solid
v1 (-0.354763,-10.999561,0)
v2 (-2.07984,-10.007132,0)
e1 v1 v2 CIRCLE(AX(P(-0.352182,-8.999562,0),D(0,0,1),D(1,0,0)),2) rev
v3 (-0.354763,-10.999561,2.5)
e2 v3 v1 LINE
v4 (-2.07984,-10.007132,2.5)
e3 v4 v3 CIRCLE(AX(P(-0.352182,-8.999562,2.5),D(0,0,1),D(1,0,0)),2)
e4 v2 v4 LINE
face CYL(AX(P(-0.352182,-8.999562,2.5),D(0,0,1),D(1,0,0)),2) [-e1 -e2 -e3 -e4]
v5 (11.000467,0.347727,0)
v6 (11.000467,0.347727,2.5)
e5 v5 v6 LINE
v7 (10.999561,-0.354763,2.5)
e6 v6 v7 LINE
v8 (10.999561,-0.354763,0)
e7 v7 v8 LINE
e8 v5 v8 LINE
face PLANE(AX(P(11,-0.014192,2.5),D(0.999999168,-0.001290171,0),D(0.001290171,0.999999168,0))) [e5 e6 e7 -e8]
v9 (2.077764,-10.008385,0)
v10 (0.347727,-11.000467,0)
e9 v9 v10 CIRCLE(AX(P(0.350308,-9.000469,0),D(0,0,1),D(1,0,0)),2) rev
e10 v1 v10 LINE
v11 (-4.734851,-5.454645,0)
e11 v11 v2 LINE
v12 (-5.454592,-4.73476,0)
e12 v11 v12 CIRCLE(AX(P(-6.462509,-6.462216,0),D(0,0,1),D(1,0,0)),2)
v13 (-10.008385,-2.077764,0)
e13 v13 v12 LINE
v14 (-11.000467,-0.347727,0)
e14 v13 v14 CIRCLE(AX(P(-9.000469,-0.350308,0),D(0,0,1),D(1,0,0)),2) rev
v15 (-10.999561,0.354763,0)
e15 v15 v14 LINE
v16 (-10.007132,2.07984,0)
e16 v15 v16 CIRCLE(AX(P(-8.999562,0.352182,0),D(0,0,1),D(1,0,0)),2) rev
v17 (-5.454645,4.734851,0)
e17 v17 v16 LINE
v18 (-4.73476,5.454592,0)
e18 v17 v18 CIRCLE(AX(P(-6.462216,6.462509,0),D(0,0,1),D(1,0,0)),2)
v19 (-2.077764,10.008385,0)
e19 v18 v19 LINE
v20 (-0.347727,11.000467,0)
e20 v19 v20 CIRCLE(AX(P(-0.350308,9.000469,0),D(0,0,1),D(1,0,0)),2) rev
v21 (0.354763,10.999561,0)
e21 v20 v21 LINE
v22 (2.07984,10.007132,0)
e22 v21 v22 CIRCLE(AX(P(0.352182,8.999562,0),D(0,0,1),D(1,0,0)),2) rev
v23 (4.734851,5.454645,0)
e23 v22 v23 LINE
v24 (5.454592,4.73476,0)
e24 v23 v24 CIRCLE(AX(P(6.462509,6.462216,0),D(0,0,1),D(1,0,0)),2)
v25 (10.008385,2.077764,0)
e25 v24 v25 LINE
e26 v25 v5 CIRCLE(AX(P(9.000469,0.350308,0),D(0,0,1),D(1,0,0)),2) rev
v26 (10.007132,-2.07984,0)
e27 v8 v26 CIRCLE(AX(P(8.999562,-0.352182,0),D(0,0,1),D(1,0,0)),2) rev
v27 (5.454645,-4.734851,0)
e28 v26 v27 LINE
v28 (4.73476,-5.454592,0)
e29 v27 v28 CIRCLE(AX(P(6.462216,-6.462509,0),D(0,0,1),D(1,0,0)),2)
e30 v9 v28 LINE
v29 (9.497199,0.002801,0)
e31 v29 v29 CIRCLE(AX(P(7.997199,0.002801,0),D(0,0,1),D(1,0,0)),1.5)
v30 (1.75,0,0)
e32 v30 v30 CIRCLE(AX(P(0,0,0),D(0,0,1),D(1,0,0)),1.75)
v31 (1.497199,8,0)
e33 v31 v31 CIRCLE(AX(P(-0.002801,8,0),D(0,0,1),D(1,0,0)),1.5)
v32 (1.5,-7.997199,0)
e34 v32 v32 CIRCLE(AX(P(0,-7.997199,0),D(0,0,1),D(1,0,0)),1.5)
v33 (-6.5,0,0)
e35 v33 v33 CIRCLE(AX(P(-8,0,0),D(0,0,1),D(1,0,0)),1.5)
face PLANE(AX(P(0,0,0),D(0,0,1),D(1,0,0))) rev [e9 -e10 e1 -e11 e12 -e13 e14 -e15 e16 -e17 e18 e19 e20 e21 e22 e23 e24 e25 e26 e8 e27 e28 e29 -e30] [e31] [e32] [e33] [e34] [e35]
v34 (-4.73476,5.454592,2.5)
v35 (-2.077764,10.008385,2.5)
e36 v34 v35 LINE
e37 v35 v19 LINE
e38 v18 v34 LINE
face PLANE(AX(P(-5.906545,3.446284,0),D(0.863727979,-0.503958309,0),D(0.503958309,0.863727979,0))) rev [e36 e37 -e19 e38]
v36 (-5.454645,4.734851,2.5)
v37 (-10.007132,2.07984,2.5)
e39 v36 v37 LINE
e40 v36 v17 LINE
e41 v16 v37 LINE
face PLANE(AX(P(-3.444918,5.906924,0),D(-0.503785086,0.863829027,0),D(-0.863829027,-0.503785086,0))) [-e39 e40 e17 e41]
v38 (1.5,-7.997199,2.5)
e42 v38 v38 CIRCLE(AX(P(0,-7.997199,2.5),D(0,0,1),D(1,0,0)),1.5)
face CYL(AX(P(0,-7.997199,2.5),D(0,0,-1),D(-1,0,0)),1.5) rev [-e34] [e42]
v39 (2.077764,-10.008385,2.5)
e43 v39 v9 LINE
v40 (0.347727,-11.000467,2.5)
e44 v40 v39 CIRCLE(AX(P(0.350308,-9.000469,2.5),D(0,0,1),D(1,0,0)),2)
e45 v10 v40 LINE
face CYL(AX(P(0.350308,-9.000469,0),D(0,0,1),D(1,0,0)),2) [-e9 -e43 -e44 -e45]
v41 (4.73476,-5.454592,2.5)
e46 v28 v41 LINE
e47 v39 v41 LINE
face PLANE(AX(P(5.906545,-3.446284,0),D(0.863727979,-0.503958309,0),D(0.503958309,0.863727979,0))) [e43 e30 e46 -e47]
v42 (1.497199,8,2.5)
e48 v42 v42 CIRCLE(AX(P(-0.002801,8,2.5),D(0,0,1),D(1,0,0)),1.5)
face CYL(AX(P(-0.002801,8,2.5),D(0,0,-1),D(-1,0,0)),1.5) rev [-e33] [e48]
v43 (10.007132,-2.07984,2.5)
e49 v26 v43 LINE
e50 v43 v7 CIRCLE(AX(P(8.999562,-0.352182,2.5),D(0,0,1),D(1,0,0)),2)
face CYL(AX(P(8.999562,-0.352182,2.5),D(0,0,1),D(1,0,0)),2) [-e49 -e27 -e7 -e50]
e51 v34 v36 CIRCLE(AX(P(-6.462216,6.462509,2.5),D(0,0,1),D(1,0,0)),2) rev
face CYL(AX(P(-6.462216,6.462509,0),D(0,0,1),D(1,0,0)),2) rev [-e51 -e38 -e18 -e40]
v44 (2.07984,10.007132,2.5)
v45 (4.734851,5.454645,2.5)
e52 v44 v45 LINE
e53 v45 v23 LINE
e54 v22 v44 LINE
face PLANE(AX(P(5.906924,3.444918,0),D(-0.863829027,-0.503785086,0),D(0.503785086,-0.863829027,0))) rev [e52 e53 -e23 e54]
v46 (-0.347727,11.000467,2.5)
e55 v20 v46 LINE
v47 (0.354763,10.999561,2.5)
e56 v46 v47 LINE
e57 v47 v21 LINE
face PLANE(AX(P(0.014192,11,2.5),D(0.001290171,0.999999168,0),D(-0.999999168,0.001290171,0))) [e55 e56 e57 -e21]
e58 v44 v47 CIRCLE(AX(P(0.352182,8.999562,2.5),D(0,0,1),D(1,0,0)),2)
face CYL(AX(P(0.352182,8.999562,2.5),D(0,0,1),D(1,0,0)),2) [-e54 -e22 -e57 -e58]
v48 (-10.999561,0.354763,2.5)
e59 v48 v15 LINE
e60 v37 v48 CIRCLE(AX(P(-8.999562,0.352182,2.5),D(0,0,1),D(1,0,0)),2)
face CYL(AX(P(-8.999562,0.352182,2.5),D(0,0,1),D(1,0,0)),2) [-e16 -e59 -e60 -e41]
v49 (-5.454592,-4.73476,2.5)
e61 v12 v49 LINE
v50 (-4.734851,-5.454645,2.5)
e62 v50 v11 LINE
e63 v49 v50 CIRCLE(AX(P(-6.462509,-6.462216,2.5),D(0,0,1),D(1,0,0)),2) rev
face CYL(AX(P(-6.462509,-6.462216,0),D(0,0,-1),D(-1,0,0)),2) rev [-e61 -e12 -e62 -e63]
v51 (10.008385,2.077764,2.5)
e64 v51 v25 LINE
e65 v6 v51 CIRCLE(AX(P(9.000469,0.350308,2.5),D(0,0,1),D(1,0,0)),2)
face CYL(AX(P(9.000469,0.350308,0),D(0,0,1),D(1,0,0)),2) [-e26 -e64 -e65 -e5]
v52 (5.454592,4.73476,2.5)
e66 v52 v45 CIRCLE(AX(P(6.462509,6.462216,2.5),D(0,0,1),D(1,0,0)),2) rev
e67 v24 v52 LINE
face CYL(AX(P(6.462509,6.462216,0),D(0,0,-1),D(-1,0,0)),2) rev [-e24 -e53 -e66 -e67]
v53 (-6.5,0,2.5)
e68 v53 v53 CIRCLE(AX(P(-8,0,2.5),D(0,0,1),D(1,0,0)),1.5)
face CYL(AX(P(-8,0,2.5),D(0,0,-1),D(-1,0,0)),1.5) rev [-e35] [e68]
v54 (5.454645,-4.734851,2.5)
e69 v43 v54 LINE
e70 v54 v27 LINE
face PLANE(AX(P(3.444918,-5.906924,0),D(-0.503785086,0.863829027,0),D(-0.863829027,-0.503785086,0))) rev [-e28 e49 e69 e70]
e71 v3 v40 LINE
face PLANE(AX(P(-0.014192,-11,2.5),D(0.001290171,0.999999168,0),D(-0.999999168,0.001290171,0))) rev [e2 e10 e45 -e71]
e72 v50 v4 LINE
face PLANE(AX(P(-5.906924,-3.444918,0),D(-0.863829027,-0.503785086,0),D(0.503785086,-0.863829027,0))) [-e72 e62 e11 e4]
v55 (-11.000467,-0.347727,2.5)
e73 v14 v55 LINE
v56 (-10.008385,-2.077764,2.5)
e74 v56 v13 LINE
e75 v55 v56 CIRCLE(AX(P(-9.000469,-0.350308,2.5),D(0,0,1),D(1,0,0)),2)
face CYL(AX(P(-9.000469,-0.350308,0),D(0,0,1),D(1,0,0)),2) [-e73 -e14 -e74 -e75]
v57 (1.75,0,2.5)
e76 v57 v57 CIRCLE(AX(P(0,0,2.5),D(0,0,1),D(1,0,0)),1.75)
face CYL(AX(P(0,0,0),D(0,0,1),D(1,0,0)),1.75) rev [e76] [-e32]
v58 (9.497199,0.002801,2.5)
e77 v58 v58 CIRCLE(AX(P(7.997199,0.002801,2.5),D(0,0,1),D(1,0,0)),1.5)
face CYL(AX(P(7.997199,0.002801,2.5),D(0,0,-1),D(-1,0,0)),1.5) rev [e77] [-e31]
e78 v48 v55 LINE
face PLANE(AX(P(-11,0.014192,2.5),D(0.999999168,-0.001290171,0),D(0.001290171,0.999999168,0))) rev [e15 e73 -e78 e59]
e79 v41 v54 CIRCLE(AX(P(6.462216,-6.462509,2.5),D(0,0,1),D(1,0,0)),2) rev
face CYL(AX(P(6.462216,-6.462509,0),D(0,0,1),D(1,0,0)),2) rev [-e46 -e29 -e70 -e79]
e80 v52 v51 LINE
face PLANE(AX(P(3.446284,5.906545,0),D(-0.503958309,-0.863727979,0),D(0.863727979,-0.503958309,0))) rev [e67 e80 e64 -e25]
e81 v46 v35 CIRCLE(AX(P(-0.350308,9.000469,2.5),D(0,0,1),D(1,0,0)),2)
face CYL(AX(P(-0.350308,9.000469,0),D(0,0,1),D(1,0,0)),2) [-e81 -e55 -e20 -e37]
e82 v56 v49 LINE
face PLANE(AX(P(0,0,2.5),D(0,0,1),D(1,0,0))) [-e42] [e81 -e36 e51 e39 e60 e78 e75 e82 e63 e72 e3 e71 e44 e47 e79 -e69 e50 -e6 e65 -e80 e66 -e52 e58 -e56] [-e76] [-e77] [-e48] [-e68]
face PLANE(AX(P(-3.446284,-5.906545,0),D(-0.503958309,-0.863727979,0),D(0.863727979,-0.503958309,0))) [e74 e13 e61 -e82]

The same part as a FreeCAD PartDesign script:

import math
import FreeCAD as App
import Part
import Sketcher
Q = App.Units.Quantity


def edges_at(feature, points):
    """Names of the edges that pass closest to the given points."""
    edges = feature.Shape.Edges
    near = lambda p: min(range(len(edges)), key=lambda i: edges[i].distToShape(Part.Vertex(*p))[0])
    return sorted({f"Edge{near(p) + 1}" for p in points})


def add_polygon(sketch, points):
    """Adds a closed chain of lines whose ends are joined by coincident constraints."""
    first, n = sketch.GeometryCount, len(points)
    for a, b in zip(points, points[1:] + points[:1]):
        sketch.addGeometry(Part.LineSegment(App.Vector(*a, 0), App.Vector(*b, 0)), False)
    for i in range(n):
        sketch.addConstraint(Sketcher.Constraint("Coincident", first + i, 2, first + (i + 1) % n, 1))

doc = App.newDocument("Part")
body = doc.addObject("PartDesign::Body", "Body")

sketch1 = doc.addObject("Sketcher::SketchObject", "Sketch")
body.addObject(sketch1)
sketch1.AttachmentSupport = (doc.XY_Plane, [""])
sketch1.MapMode = "FlatFace"
add_polygon(sketch1, [(-11, 1.5), (-11, -1.5), (-1.5, -11), (0, -11), (1.5, -11), (11, -1.5), (11, 1.5), (1.5, 11), (0, 11), (-1.5, 11)])
sketch1.addGeometry(Part.ArcOfCircle(Part.Circle(App.Vector(0, -8, 0), App.Vector(0, 0, 1), 1.5), math.radians(175), math.radians(270)), False)
sketch1.addGeometry(Part.ArcOfCircle(Part.Circle(App.Vector(0, -8, 0), App.Vector(0, 0, 1), 1.5), math.radians(90), math.radians(175)), False)
sketch1.addGeometry(Part.ArcOfCircle(Part.Circle(App.Vector(0, -8, 0), App.Vector(0, 0, 1), 1.5), math.radians(5), math.radians(90)), False)
sketch1.addGeometry(Part.ArcOfCircle(Part.Circle(App.Vector(0, -8, 0), App.Vector(0, 0, 1), 1.5), math.radians(0), math.radians(5.27)), False)
sketch1.addGeometry(Part.ArcOfCircle(Part.Circle(App.Vector(0, -8, 0), App.Vector(0, 0, 1), 1.5), math.radians(-90), math.radians(0)), False)
sketch1.addGeometry(Part.ArcOfCircle(Part.Circle(App.Vector(0, 8, 0), App.Vector(0, 0, 1), 1.5), math.radians(-175), math.radians(-90)), False)
sketch1.addGeometry(Part.ArcOfCircle(Part.Circle(App.Vector(0, 8, 0), App.Vector(0, 0, 1), 1.5), math.radians(90), math.radians(185)), False)
sketch1.addGeometry(Part.ArcOfCircle(Part.Circle(App.Vector(0, 8, 0), App.Vector(0, 0, 1), 1.5), math.radians(0), math.radians(90)), False)
sketch1.addGeometry(Part.ArcOfCircle(Part.Circle(App.Vector(0, 8, 0), App.Vector(0, 0, 1), 1.5), math.radians(-5.36), math.radians(0)), False)
sketch1.addGeometry(Part.ArcOfCircle(Part.Circle(App.Vector(0, 8, 0), App.Vector(0, 0, 1), 1.5), math.radians(-90), math.radians(-5)), False)
sketch1.addGeometry(Part.ArcOfCircle(Part.Circle(App.Vector(8, 0, 0), App.Vector(0, 0, 1), 1.5), math.radians(0), math.radians(95)), False)
sketch1.addGeometry(Part.ArcOfCircle(Part.Circle(App.Vector(8, 0, 0), App.Vector(0, 0, 1), 1.5), math.radians(-95), math.radians(0)), False)
sketch1.addGeometry(Part.ArcOfCircle(Part.Circle(App.Vector(8, 0, 0), App.Vector(0, 0, 1), 1.5), math.radians(95), math.radians(265)), False)
sketch1.addGeometry(Part.ArcOfCircle(Part.Circle(App.Vector(-8, 0, 0), App.Vector(0, 0, 1), 1.5), math.radians(85), math.radians(275)), False)
sketch1.addGeometry(Part.ArcOfCircle(Part.Circle(App.Vector(-8, 0, 0), App.Vector(0, 0, 1), 1.5), math.radians(0), math.radians(85)), False)
sketch1.addGeometry(Part.ArcOfCircle(Part.Circle(App.Vector(-8, 0, 0), App.Vector(0, 0, 1), 1.5), math.radians(-85), math.radians(0)), False)
sketch1.addConstraint(Sketcher.Constraint("Tangent", 10, 1, 11, 2))
sketch1.addConstraint(Sketcher.Constraint("Tangent", 11, 1, 12, 2))
sketch1.addConstraint(Sketcher.Constraint("Tangent", 12, 1, 13, 2))
sketch1.addConstraint(Sketcher.Constraint("Tangent", 13, 1, 14, 2))
sketch1.addConstraint(Sketcher.Constraint("Tangent", 14, 1, 10, 2))
sketch1.addConstraint(Sketcher.Constraint("Tangent", 15, 1, 16, 2))
sketch1.addConstraint(Sketcher.Constraint("Tangent", 16, 1, 17, 2))
sketch1.addConstraint(Sketcher.Constraint("Tangent", 17, 1, 18, 2))
sketch1.addConstraint(Sketcher.Constraint("Tangent", 18, 1, 19, 2))
sketch1.addConstraint(Sketcher.Constraint("Tangent", 19, 1, 15, 2))
sketch1.addConstraint(Sketcher.Constraint("Tangent", 20, 1, 21, 2))
sketch1.addConstraint(Sketcher.Constraint("Tangent", 21, 1, 22, 2))
sketch1.addConstraint(Sketcher.Constraint("Tangent", 22, 1, 20, 2))
sketch1.addConstraint(Sketcher.Constraint("Tangent", 23, 1, 24, 2))
sketch1.addConstraint(Sketcher.Constraint("Tangent", 24, 1, 25, 2))
sketch1.addConstraint(Sketcher.Constraint("Tangent", 25, 1, 23, 2))
sketch1.addConstraint(Sketcher.Constraint("Coincident", 12, 3, 10, 3))
sketch1.addConstraint(Sketcher.Constraint("Coincident", 17, 3, 15, 3))
sketch1.addConstraint(Sketcher.Constraint("Equal", 14, 15))
sketch1.addConstraint(Sketcher.Constraint("Equal", 19, 20))
sketch1.addConstraint(Sketcher.Constraint("Equal", 22, 23))
sketch1.addConstraint(Sketcher.Constraint("Symmetric", 0, 2, 5, 2, -1, 1))
sketch1.addConstraint(Sketcher.Constraint("Symmetric", 1, 2, 6, 2, -1, 1))
sketch1.addConstraint(Sketcher.Constraint("Symmetric", 2, 2, 7, 2, -1, 1))
sketch1.addConstraint(Sketcher.Constraint("Symmetric", 3, 2, 8, 2, -1, 1))
sketch1.addConstraint(Sketcher.Constraint("Symmetric", 4, 2, 9, 2, -1, 1))
sketch1.addConstraint(Sketcher.Constraint("Symmetric", 10, 1, 12, 1, -2))
sketch1.addConstraint(Sketcher.Constraint("Symmetric", 23, 1, 25, 1, -1))
sketch1.addConstraint(Sketcher.Constraint("PointOnObject", 2, 2, -2))
sketch1.addConstraint(Sketcher.Constraint("PointOnObject", 11, 1, -2))
sketch1.addConstraint(Sketcher.Constraint("PointOnObject", 14, 1, -2))
sketch1.addConstraint(Sketcher.Constraint("PointOnObject", 16, 1, -2))
sketch1.addConstraint(Sketcher.Constraint("PointOnObject", 19, 1, -2))
sketch1.addConstraint(Sketcher.Constraint("PointOnObject", 24, 1, -1))
sketch1.addConstraint(Sketcher.Constraint("Perpendicular", 0, 2))
sketch1.addConstraint(Sketcher.Constraint("Parallel", 2, 3))
sketch1.addConstraint(Sketcher.Constraint("Perpendicular", 1, 4))
sketch1.addConstraint(Sketcher.Constraint("Horizontal", 14, 3, 13, 1))
sketch1.addConstraint(Sketcher.Constraint("Horizontal", 19, 3, 17, 1))
sketch1.addConstraint(Sketcher.Constraint("Horizontal", 22, 3, 20, 1))
sketch1.addConstraint(Sketcher.Constraint("Equal", 1, 4))
sketch1.addConstraint(Sketcher.Constraint("Radius", 10, Q("1.5 mm")))
sketch1.addConstraint(Sketcher.Constraint("Angle", 1, Q("-45 deg")))
sketch1.addConstraint(Sketcher.Constraint("DistanceY", -1, 1, 15, 3, Q("8 mm")))
sketch1.addConstraint(Sketcher.Constraint("DistanceX", 23, 3, -1, 1, Q("8 mm")))
sketch1.addConstraint(Sketcher.Constraint("DistanceX", 18, 3, 20, 3, Q("8 mm")))
sketch1.addConstraint(Sketcher.Constraint("DistanceY", 10, 3, 20, 3, Q("8 mm")))
sketch1.addConstraint(Sketcher.Constraint("DistanceY", 10, 3, -1, 1, Q("7.997199 mm")))
sketch1.addConstraint(Sketcher.Constraint("DistanceX", 15, 3, -1, 1, Q("0.002801 mm")))
sketch1.addConstraint(Sketcher.Constraint("DistanceY", 21, 1, 20, 3, Q("1.493698 mm")))
sketch1.addConstraint(Sketcher.Constraint("DistanceY", 20, 3, 22, 1, Q("1.493602 mm")))
sketch1.addConstraint(Sketcher.Constraint("Distance", 0, Q("2.999971 mm")))
sketch1.addConstraint(Sketcher.Constraint("Distance", 2, Q("1.501921 mm")))
sketch1.addConstraint(Sketcher.Constraint("Distance", 3, Q("1.49805 mm")))
sketch1.addConstraint(Sketcher.Constraint("DistanceX", 0, 2, -1, 1, Q("11.001951 mm")))
sketch1.addConstraint(Sketcher.Constraint("DistanceX", 10, 1, -1, 1, Q("1.49365 mm")))
sketch1.addConstraint(Sketcher.Constraint("DistanceY", -1, 1, 15, 1, Q("7.858852 mm")))
sketch1.addConstraint(Sketcher.Constraint("DistanceX", -1, 1, 18, 1, Q("1.490641 mm")))
sketch1.addConstraint(Sketcher.Constraint("DistanceX", 23, 1, -1, 1, Q("7.859375 mm")))
pad1 = doc.addObject("PartDesign::Pad", "Pad")
body.addObject(pad1)
pad1.Profile = sketch1
pad1.Length = 2.5

sketch2 = doc.addObject("Sketcher::SketchObject", "Sketch001")
body.addObject(sketch2)
sketch2.AttachmentSupport = (doc.XY_Plane, [""])
sketch2.MapMode = "FlatFace"
sketch2.AttachmentOffset = App.Placement(App.Vector(0, 0, 2.5), App.Rotation())
add_polygon(sketch2, [(-11, 2), (-5, 5), (-1, 11)])
add_polygon(sketch2, [(-2, -11), (-5, -5), (-11, -1)])
add_polygon(sketch2, [(2, 11), (5, 5), (11, 1)])
add_polygon(sketch2, [(11, -2), (5, -5), (1, -11)])
sketch2.addConstraint(Sketcher.Constraint("Symmetric", 3, 2, 6, 2, -1, 1))
sketch2.addConstraint(Sketcher.Constraint("Symmetric", 4, 2, 7, 2, -1, 1))
sketch2.addConstraint(Sketcher.Constraint("Symmetric", 5, 2, 8, 2, -1, 1))
sketch2.addConstraint(Sketcher.Constraint("Symmetric", 0, 2, 9, 2, -1, 1))
sketch2.addConstraint(Sketcher.Constraint("Symmetric", 1, 2, 10, 2, -1, 1))
sketch2.addConstraint(Sketcher.Constraint("Symmetric", 2, 2, 11, 2, -1, 1))
sketch2.addConstraint(Sketcher.Constraint("Symmetric", 0, 2, 6, 2, -2))
sketch2.addConstraint(Sketcher.Constraint("Perpendicular", 0, 3))
sketch2.addConstraint(Sketcher.Constraint("Perpendicular", 1, 4))
sketch2.addConstraint(Sketcher.Constraint("Perpendicular", 2, 5))
sketch2.addConstraint(Sketcher.Constraint("Equal", 0, 3))
sketch2.addConstraint(Sketcher.Constraint("Angle", 2, Q("-135 deg")))
sketch2.addConstraint(Sketcher.Constraint("DistanceX", 0, 2, -1, 1, Q("5 mm")))
sketch2.addConstraint(Sketcher.Constraint("DistanceY", -1, 1, 0, 2, Q("5 mm")))
sketch2.addConstraint(Sketcher.Constraint("DistanceY", 4, 2, 1, 2, Q("12.5 mm")))
sketch2.addConstraint(Sketcher.Constraint("Distance", 1, Q("6.94889 mm")))
sketch2.addConstraint(Sketcher.Constraint("DistanceX", 2, 2, -1, 1, Q("10.998081 mm")))
pocket1 = doc.addObject("PartDesign::Pocket", "Pocket")
body.addObject(pocket1)
pocket1.Profile = sketch2
pocket1.Length = 2.5

sketch3 = doc.addObject("Sketcher::SketchObject", "Sketch002")
body.addObject(sketch3)
sketch3.AttachmentSupport = (doc.XY_Plane, [""])
sketch3.MapMode = "FlatFace"
sketch3.AttachmentOffset = App.Placement(App.Vector(0, 0, 2.5), App.Rotation())
sketch3.addGeometry(Part.Circle(App.Vector(0, 0, 0), App.Vector(0, 0, 1), 1.8), False)
sketch3.addConstraint(Sketcher.Constraint("Coincident", 0, 3, -1, 1))
sketch3.addConstraint(Sketcher.Constraint("Diameter", 0, Q("3.5 mm")))
pocket2 = doc.addObject("PartDesign::Pocket", "Pocket001")
body.addObject(pocket2)
pocket2.Profile = sketch3
pocket2.Length = 2.5
doc.recompute()

fillet = doc.addObject("PartDesign::Fillet", "Fillet")
body.addObject(fillet)
fillet.Base = (pocket2, edges_at(pocket2, [
    (1.498, -11.002, 1.25),
    (-1.502, -10.998, 1.25),
    (-11.002, -1.498, 1.25),
    (-10.998, 1.502, 1.25),
    (-1.498, 11.002, 1.25),
    (1.502, 10.998, 1.25),
    (11.002, 1.498, 1.25),
    (10.998, -1.502, 1.25),
    (-5, -5, 1.25),
    (5, 5, 1.25),
    (5, -5, 1.25),
    (-5, 5, 1.25),
]))
fillet.Radius = 2

doc.recompute()
